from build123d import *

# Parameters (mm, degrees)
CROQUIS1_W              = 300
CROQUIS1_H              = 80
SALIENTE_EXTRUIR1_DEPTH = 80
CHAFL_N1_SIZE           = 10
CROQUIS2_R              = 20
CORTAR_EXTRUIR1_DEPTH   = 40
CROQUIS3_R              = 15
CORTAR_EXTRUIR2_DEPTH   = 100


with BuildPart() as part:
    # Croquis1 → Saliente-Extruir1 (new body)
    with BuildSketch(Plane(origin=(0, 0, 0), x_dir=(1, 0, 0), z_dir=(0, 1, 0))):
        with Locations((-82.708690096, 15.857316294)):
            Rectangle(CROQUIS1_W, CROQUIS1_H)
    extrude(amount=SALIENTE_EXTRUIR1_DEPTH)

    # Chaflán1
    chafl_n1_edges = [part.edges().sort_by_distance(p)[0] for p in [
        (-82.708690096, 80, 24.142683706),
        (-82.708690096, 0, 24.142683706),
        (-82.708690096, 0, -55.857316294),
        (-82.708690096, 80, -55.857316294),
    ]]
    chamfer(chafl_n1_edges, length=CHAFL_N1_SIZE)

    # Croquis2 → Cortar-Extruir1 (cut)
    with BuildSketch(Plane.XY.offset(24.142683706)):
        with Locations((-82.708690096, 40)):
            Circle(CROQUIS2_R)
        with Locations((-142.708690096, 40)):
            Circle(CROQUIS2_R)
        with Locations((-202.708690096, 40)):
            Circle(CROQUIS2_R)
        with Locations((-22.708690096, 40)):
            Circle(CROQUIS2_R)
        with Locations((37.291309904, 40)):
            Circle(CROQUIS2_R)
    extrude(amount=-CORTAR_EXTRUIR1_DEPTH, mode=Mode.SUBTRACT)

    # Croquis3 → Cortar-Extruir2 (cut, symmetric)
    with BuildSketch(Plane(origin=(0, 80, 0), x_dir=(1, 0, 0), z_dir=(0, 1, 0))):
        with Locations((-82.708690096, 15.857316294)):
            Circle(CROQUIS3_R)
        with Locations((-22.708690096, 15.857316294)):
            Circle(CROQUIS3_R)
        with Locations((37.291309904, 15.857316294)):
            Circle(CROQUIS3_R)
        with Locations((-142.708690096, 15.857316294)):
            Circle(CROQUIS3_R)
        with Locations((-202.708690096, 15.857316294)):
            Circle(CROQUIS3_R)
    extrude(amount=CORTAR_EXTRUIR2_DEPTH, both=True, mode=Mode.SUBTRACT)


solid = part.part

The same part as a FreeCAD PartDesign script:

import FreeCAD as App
import Part
import Sketcher
from FreeCAD import Vector


def edges_at(feature, points):
    """Names of the edges that pass closest to the given points."""
    edges = feature.Shape.Edges
    near = lambda p: min(range(len(edges)), key=lambda i: edges[i].distToShape(Part.Vertex(*p))[0])
    return sorted({f"Edge{near(p) + 1}" for p in points})


def add_polygon(sketch, points):
    """Adds a closed chain of lines whose ends are joined by coincident constraints."""
    first, n = sketch.GeometryCount, len(points)
    for a, b in zip(points, points[1:] + points[:1]):
        sketch.addGeometry(Part.LineSegment(App.Vector(*a, 0), App.Vector(*b, 0)), False)
    for i in range(n):
        sketch.addConstraint(Sketcher.Constraint("Coincident", first + i, 2, first + (i + 1) % n, 1))

doc = App.newDocument("Part")
params = doc.addObject("Spreadsheet::Sheet", "Params")
for row, (alias, value) in enumerate([
    ("sketch1_width", "300 mm"),
    ("sketch1_height", "80 mm"),
    ("pad1_length", "80 mm"),
    ("chamfer_size", "10 mm"),
    ("sketch2_diameter", "40 mm"),
    ("pocket1_length", "40 mm"),
    ("sketch3_diameter", "30 mm"),
    ("pocket2_length", "200 mm"),
], start=1):
    params.set(f"A{row}", alias)
    params.set(f"B{row}", "=" + value)
    params.setAlias(f"B{row}", alias)

body = doc.addObject("PartDesign::Body", "Body")

sketch1 = body.newObject("Sketcher::SketchObject", "Sketch")
sketch1.AttachmentSupport = (doc.getObject("XZ_Plane"), [""])
sketch1.MapMode = "FlatFace"
add_polygon(sketch1, [(-232.70869, -55.857316), (-232.70869, 24.142684), (67.29131, 24.142684), (67.29131, -55.857316)])
sketch1.addConstraint([
    Sketcher.Constraint("Vertical", 0),
    Sketcher.Constraint("Horizontal", 1),
    Sketcher.Constraint("Vertical", 2),
    Sketcher.Constraint("Horizontal", 3),
    Sketcher.Constraint("DistanceX", 1, 1, 1, 2, 300.0),
    Sketcher.Constraint("DistanceY", 0, 1, 0, 2, 80.0),
    Sketcher.Constraint("DistanceX", 0, 2, -1, 1, 232.70869),
    Sketcher.Constraint("DistanceY", -1, 1, 0, 2, 24.142684),
])
sketch1.setExpression("Constraints[8]", "Params.sketch1_width")
sketch1.setExpression("Constraints[9]", "Params.sketch1_height")
pad1 = body.newObject("PartDesign::Pad", "Pad")
pad1.Profile = sketch1
pad1.setExpression("Length", "Params.pad1_length")
pad1.Reversed = True
doc.recompute()

chamfer = body.newObject("PartDesign::Chamfer", "Chamfer")
chamfer.Base = (pad1, edges_at(pad1, [
    (-82.709, 80, 24.143),
    (-82.709, 0, 24.143),
    (-82.709, 0, -55.857),
    (-82.709, 80, -55.857),
]))
chamfer.setExpression("Size", "Params.chamfer_size")

sketch2 = body.newObject("Sketcher::SketchObject", "Sketch001")
sketch2.AttachmentSupport = (doc.getObject("XY_Plane"), [""])
sketch2.MapMode = "FlatFace"
sketch2.AttachmentOffset = App.Placement(Vector(0, 0, 24.142684), App.Rotation())
sketch2.addGeometry([
    Part.Circle(Vector(-82.70869, 40, 0), Vector(0, 0, 1), 20),
    Part.Circle(Vector(-142.70869, 40, 0), Vector(0, 0, 1), 20),
    Part.Circle(Vector(-202.70869, 40, 0), Vector(0, 0, 1), 20),
    Part.Circle(Vector(-22.70869, 40, 0), Vector(0, 0, 1), 20),
    Part.Circle(Vector(37.29131, 40, 0), Vector(0, 0, 1), 20),
], False)
sketch2.addConstraint([
    Sketcher.Constraint("Equal", 0, 1),
    Sketcher.Constraint("Equal", 1, 2),
    Sketcher.Constraint("Equal", 2, 3),
    Sketcher.Constraint("Equal", 3, 4),
    Sketcher.Constraint("Horizontal", 0, 3, 1, 3),
    Sketcher.Constraint("Horizontal", 1, 3, 2, 3),
    Sketcher.Constraint("Horizontal", 2, 3, 3, 3),
    Sketcher.Constraint("Horizontal", 3, 3, 4, 3),
    Sketcher.Constraint("Diameter", 0, 40.0),
    Sketcher.Constraint("DistanceY", -1, 1, 0, 3, 40.0),
    Sketcher.Constraint("DistanceX", 1, 3, 0, 3, 60.0),
    Sketcher.Constraint("DistanceX", 2, 3, 1, 3, 60.0),
    Sketcher.Constraint("DistanceX", 0, 3, 3, 3, 60.0),
    Sketcher.Constraint("DistanceX", 3, 3, 4, 3, 60.0),
    Sketcher.Constraint("DistanceX", 0, 3, -1, 1, 82.70869),
])
sketch2.setExpression("Constraints[8]", "Params.sketch2_diameter")
pocket1 = body.newObject("PartDesign::Pocket", "Pocket")
pocket1.Profile = sketch2
pocket1.setExpression("Length", "Params.pocket1_length")

sketch3 = body.newObject("Sketcher::SketchObject", "Sketch002")
sketch3.AttachmentSupport = (doc.getObject("XZ_Plane"), [""])
sketch3.MapMode = "FlatFace"
sketch3.AttachmentOffset = App.Placement(Vector(0, 0, -80), App.Rotation())
sketch3.addGeometry([
    Part.Circle(Vector(-82.70869, -15.857316, 0), Vector(0, 0, 1), 15),
    Part.Circle(Vector(-22.70869, -15.857316, 0), Vector(0, 0, 1), 15),
    Part.Circle(Vector(37.29131, -15.857316, 0), Vector(0, 0, 1), 15),
    Part.Circle(Vector(-142.70869, -15.857316, 0), Vector(0, 0, 1), 15),
    Part.Circle(Vector(-202.70869, -15.857316, 0), Vector(0, 0, 1), 15),
], False)
sketch3.addConstraint([
    Sketcher.Constraint("Equal", 0, 1),
    Sketcher.Constraint("Equal", 1, 2),
    Sketcher.Constraint("Equal", 2, 3),
    Sketcher.Constraint("Equal", 3, 4),
    Sketcher.Constraint("Horizontal", 0, 3, 1, 3),
    Sketcher.Constraint("Horizontal", 1, 3, 2, 3),
    Sketcher.Constraint("Horizontal", 2, 3, 3, 3),
    Sketcher.Constraint("Horizontal", 3, 3, 4, 3),
    Sketcher.Constraint("Diameter", 0, 30.0),
    Sketcher.Constraint("DistanceX", 0, 3, 1, 3, 60.0),
    Sketcher.Constraint("DistanceX", 1, 3, 2, 3, 60.0),
    Sketcher.Constraint("DistanceX", 3, 3, 0, 3, 60.0),
    Sketcher.Constraint("DistanceX", 4, 3, 3, 3, 60.0),
    Sketcher.Constraint("DistanceX", 0, 3, -1, 1, 82.70869),
    Sketcher.Constraint("DistanceY", 0, 3, -1, 1, 15.857316),
])
sketch3.setExpression("Constraints[8]", "Params.sketch3_diameter")
pocket2 = body.newObject("PartDesign::Pocket", "Pocket001")
pocket2.Profile = sketch3
pocket2.setExpression("Length", "Params.pocket2_length")
pocket2.Midplane = True

doc.recompute()
